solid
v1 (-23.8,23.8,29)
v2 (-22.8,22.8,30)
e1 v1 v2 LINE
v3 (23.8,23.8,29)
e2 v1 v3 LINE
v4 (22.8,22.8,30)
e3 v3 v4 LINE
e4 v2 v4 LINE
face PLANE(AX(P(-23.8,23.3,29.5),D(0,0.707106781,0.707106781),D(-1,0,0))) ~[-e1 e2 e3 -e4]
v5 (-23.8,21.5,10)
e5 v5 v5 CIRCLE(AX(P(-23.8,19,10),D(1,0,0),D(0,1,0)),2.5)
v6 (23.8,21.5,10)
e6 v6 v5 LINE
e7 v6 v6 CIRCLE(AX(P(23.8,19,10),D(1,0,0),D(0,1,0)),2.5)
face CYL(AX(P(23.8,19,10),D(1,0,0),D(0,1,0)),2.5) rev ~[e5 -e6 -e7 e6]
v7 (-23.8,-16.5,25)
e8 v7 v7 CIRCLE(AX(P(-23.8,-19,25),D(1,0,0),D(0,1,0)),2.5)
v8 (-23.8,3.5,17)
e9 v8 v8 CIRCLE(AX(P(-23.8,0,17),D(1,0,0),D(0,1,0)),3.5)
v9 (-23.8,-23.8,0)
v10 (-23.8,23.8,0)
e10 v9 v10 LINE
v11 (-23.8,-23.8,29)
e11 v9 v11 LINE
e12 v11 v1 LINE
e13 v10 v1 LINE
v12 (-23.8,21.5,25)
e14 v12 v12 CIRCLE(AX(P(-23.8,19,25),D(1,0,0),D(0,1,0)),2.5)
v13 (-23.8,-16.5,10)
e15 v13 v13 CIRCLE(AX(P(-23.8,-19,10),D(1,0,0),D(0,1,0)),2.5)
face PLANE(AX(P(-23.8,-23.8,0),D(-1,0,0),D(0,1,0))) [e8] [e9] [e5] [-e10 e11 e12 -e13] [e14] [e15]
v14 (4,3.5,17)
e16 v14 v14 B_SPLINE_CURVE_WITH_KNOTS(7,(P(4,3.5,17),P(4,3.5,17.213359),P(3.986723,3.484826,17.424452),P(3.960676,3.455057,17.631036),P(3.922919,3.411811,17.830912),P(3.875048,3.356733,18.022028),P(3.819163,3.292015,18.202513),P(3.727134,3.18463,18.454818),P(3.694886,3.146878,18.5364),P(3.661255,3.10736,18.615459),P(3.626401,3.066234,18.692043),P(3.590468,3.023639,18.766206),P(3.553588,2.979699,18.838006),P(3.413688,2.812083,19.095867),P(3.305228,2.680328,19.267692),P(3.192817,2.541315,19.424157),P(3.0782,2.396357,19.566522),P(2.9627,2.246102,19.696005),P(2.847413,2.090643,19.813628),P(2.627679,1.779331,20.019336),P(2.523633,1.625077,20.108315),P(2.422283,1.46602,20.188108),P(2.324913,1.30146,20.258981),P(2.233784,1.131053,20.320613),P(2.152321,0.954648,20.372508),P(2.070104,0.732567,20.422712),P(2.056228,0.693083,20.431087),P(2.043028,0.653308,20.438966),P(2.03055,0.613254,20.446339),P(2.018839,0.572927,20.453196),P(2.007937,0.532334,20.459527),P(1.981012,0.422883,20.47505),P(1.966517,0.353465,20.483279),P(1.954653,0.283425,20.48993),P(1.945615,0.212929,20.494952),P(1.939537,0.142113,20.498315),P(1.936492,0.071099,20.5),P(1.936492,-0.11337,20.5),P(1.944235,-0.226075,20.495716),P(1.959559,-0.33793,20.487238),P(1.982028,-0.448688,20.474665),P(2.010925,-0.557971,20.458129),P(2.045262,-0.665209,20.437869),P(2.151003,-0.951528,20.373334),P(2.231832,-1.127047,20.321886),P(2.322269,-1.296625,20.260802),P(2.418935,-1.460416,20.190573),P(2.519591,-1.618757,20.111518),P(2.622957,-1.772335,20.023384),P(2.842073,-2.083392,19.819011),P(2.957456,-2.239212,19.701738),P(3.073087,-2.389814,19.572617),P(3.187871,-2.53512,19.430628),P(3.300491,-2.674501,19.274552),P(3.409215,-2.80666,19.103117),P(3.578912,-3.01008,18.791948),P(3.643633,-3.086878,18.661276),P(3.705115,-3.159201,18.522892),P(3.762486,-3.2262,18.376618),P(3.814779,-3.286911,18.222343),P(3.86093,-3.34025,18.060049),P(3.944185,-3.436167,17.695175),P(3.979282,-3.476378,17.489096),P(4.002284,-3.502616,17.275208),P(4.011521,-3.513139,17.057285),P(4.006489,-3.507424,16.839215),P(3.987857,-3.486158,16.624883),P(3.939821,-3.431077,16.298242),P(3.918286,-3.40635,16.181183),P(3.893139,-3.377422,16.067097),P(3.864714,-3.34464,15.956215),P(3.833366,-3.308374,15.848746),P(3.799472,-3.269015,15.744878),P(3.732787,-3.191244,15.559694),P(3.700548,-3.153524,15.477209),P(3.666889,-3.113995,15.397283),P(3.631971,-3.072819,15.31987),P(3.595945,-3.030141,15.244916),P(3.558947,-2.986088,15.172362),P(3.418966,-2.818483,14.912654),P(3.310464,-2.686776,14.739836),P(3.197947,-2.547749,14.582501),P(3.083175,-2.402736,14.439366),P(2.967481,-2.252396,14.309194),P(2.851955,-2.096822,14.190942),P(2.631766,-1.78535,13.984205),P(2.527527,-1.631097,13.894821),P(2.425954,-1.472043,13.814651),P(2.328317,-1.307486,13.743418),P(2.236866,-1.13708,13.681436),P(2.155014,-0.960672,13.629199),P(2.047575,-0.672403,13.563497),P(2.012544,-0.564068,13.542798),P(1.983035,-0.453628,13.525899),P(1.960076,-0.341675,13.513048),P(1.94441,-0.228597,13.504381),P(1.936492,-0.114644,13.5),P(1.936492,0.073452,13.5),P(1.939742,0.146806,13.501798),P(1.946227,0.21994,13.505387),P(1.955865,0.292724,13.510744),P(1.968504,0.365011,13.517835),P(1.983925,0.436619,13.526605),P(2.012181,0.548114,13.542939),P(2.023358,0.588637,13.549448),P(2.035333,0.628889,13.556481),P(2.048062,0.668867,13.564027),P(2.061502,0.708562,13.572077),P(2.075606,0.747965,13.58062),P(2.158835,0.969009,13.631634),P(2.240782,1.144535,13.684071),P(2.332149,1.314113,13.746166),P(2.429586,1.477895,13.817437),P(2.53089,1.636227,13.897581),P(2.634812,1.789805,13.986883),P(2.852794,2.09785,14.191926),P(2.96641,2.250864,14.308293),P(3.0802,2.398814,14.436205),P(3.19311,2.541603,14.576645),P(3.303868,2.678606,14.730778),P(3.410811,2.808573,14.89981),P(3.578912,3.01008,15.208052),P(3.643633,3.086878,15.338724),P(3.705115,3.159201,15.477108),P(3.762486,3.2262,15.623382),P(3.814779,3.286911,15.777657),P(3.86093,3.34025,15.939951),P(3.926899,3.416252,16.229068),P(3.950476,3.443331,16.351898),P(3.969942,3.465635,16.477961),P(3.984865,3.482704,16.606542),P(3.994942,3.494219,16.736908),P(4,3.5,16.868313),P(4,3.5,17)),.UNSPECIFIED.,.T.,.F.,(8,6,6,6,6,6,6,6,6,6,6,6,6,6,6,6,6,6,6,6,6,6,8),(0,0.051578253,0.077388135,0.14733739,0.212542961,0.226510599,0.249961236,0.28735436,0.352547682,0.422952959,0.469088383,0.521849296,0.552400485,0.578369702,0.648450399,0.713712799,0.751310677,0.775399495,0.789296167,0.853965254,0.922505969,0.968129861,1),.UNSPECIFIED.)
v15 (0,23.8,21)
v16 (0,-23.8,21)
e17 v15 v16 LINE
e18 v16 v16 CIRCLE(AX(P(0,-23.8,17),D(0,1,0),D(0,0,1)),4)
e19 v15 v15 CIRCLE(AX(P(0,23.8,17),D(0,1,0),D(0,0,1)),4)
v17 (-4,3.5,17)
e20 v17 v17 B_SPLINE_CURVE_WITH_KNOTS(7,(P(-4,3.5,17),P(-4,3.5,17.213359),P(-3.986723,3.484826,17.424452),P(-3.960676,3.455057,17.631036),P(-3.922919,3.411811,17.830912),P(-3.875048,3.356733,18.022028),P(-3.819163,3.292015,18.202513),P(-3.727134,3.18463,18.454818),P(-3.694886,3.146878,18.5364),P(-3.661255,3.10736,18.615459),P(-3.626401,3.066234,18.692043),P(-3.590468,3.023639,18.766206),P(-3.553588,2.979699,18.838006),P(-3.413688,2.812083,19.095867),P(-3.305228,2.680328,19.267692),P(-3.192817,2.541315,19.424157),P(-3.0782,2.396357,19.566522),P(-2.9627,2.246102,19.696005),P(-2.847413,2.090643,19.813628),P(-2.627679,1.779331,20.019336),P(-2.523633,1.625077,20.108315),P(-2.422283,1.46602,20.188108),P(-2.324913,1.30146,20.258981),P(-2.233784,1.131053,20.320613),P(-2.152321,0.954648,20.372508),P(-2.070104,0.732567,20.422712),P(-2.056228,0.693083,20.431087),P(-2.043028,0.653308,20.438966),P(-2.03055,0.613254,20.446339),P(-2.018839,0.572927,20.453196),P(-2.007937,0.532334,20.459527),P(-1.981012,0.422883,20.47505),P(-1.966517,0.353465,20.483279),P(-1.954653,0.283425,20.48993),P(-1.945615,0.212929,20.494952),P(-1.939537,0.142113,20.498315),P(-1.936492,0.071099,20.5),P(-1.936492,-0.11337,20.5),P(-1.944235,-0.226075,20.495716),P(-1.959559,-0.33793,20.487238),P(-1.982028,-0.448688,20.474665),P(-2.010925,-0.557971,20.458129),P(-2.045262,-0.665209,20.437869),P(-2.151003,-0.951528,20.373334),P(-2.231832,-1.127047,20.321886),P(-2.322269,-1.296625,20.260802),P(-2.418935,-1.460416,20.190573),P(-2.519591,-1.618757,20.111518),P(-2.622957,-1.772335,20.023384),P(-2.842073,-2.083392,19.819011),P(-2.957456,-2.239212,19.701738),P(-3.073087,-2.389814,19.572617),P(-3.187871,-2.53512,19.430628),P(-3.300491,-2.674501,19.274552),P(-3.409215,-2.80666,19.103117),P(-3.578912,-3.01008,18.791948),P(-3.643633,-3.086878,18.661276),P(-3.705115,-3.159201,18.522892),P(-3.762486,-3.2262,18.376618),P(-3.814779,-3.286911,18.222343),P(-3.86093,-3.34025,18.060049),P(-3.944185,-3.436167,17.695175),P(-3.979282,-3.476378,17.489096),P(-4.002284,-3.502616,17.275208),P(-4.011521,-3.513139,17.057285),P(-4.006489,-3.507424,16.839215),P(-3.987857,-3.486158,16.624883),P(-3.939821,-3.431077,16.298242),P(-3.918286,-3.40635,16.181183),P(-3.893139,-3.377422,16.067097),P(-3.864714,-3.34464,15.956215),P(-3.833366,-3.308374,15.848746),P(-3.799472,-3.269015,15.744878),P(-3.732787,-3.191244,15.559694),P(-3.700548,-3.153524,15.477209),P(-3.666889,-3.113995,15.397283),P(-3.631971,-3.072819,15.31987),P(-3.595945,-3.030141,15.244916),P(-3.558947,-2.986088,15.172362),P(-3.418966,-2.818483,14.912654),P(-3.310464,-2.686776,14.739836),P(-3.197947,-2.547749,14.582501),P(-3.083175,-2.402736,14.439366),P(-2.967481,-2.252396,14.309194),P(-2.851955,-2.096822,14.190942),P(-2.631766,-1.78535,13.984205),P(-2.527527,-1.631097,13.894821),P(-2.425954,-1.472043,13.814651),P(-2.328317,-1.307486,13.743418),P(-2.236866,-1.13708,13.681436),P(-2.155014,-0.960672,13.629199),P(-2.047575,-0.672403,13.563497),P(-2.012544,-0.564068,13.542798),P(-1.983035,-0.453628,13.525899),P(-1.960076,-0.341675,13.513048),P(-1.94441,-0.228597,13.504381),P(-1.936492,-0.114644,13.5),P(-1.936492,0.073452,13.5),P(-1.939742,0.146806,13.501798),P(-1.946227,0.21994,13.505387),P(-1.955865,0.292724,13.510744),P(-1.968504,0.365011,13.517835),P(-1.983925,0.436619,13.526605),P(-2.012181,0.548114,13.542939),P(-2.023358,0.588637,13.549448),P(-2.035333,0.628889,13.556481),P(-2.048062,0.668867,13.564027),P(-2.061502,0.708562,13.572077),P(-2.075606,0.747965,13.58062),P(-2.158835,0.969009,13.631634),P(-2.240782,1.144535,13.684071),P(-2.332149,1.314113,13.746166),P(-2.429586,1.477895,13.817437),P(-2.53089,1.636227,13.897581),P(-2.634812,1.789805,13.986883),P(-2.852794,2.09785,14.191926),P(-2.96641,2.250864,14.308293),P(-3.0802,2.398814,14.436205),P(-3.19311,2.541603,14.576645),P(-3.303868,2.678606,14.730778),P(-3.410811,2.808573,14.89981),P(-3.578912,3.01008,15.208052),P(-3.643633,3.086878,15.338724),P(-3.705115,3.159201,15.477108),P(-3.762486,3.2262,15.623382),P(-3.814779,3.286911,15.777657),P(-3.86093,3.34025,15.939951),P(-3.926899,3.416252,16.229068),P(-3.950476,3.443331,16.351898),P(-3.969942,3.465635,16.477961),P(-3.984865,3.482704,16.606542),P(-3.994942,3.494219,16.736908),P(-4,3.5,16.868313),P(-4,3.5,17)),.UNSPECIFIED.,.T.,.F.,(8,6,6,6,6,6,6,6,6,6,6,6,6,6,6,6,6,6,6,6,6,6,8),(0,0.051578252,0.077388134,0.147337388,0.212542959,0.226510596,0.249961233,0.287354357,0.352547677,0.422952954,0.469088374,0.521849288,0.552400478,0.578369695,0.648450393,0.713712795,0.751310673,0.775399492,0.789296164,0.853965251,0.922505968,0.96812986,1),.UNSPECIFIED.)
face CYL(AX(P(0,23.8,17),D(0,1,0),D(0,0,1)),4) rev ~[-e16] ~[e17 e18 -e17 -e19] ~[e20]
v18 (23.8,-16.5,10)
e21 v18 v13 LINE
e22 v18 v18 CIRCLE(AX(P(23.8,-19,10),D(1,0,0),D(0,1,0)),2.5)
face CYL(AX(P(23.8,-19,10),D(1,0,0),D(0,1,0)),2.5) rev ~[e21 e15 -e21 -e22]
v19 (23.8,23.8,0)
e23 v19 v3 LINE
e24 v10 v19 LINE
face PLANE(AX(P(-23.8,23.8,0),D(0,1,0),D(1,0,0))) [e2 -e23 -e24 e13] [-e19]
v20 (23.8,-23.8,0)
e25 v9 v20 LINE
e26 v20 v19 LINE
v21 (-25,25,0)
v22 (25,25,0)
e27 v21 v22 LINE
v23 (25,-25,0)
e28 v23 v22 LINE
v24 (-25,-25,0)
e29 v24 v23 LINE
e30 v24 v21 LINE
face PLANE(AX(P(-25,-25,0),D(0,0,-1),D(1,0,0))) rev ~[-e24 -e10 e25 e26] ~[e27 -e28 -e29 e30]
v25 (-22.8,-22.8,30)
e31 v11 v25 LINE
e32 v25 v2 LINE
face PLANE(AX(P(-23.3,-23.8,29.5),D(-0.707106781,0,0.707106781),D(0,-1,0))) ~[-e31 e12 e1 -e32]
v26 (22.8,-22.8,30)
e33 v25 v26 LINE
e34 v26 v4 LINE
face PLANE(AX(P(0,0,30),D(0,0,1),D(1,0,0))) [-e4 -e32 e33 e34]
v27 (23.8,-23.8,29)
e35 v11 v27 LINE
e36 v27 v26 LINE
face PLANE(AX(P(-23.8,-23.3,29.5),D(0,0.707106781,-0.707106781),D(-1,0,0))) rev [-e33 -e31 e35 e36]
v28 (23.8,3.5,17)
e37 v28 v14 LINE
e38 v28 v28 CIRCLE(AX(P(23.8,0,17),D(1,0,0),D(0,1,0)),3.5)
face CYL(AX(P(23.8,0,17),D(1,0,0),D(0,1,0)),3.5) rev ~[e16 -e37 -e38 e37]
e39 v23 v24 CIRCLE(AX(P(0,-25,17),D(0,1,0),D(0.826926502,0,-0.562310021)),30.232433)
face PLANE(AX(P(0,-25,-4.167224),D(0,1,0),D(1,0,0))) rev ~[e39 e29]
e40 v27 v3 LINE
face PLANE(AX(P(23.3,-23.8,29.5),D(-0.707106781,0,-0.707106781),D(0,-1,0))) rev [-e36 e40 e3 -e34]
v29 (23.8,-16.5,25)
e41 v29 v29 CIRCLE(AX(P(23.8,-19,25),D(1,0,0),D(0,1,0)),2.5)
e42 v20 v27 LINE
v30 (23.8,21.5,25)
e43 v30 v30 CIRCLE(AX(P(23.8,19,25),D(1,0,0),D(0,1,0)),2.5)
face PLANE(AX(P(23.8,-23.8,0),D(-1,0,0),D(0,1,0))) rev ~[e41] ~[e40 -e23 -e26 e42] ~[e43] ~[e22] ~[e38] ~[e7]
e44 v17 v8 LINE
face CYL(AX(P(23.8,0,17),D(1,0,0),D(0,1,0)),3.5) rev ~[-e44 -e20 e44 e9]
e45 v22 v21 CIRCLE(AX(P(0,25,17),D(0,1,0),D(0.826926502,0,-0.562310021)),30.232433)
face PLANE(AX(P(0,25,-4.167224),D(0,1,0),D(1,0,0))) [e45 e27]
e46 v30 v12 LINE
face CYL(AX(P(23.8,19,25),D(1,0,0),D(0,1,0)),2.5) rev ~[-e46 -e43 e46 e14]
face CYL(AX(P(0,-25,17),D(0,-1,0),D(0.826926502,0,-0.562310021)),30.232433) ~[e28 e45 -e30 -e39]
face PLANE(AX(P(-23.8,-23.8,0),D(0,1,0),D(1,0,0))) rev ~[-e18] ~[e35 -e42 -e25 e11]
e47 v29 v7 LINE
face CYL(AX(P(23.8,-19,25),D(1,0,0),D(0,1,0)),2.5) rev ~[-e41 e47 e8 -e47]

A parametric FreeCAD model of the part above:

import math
import FreeCAD as App
import Part
import Sketcher
Q = App.Units.Quantity


def edges_at(feature, points):
    """Names of the edges that pass closest to the given points."""
    edges = feature.Shape.Edges
    near = lambda p: min(range(len(edges)), key=lambda i: edges[i].distToShape(Part.Vertex(*p))[0])
    return sorted({f"Edge{near(p) + 1}" for p in points})


def add_polygon(sketch, points):
    """Adds a closed chain of lines whose ends are joined by coincident constraints."""
    first, n = sketch.GeometryCount, len(points)
    for a, b in zip(points, points[1:] + points[:1]):
        sketch.addGeometry(Part.LineSegment(App.Vector(*a, 0), App.Vector(*b, 0)), False)
    for i in range(n):
        sketch.addConstraint(Sketcher.Constraint("Coincident", first + i, 2, first + (i + 1) % n, 1))

doc = App.newDocument("Part")
body = doc.addObject("PartDesign::Body", "Body")

sketch1 = body.newObject("Sketcher::SketchObject", "Sketch")
sketch1.AttachmentSupport = (doc.getObject("XY_Plane"), [""])
sketch1.MapMode = "FlatFace"
add_polygon(sketch1, [(-24, 24), (-24, -24), (24, -24), (24, 24)])
sketch1.addConstraint(Sketcher.Constraint("Vertical", 0))
sketch1.addConstraint(Sketcher.Constraint("Horizontal", 1))
sketch1.addConstraint(Sketcher.Constraint("Vertical", 2))
sketch1.addConstraint(Sketcher.Constraint("Horizontal", 3))
sketch1.addConstraint(Sketcher.Constraint("Symmetric", 0, 2, 2, 2, -1, 1))
sketch1.addConstraint(Sketcher.Constraint("Equal", 3, 0))
sketch1.addConstraint(Sketcher.Constraint("DistanceX", 1, 1, 1, 2, Q("47.6 mm")))
pad1 = body.newObject("PartDesign::Pad", "Pad")
pad1.Profile = sketch1
pad1.Length = 30

sketch2 = body.newObject("Sketcher::SketchObject", "Sketch001")
sketch2.AttachmentSupport = (doc.getObject("XZ_Plane"), [""])
sketch2.MapMode = "FlatFace"
sketch2.addGeometry(Part.LineSegment(App.Vector(-25, 0, 0), App.Vector(25, 0, 0)), False)
sketch2.addGeometry(Part.ArcOfCircle(Part.Circle(App.Vector(0, 17, 0), App.Vector(0, 0, 1), 30), math.radians(-146), math.radians(-34)), False)
sketch2.addConstraint(Sketcher.Constraint("Coincident", 0, 1, 1, 1))
sketch2.addConstraint(Sketcher.Constraint("Coincident", 1, 2, 0, 2))
sketch2.addConstraint(Sketcher.Constraint("Horizontal", 0))
sketch2.addConstraint(Sketcher.Constraint("Symmetric", 0, 1, 1, 2, -1, 1))
sketch2.addConstraint(Sketcher.Constraint("DistanceX", 0, 1, 0, 2, Q("50 mm")))
sketch2.addConstraint(Sketcher.Constraint("DistanceY", -1, 1, 1, 3, Q("17 mm")))
pad2 = body.newObject("PartDesign::Pad", "Pad001")
pad2.Profile = sketch2
pad2.Type = "TwoLengths"
pad2.Length = 25
pad2.Length2 = 25
pad2.Reversed = True

sketch3 = body.newObject("Sketcher::SketchObject", "Sketch002")
sketch3.AttachmentSupport = (doc.getObject("XZ_Plane"), [""])
sketch3.MapMode = "FlatFace"
sketch3.AttachmentOffset = App.Placement(App.Vector(0, 0, -23.8), App.Rotation())
sketch3.addGeometry(Part.Circle(App.Vector(0, 17, 0), App.Vector(0, 0, 1), 4), False)
sketch3.addConstraint(Sketcher.Constraint("PointOnObject", 0, 3, -2))
sketch3.addConstraint(Sketcher.Constraint("Diameter", 0, Q("8 mm")))
sketch3.addConstraint(Sketcher.Constraint("DistanceY", -1, 1, 0, 3, Q("17 mm")))
pocket1 = body.newObject("PartDesign::Pocket", "Pocket")
pocket1.Profile = sketch3
pocket1.Type = "ThroughAll"
pocket1.Reversed = True

sketch4 = body.newObject("Sketcher::SketchObject", "Sketch003")
sketch4.AttachmentSupport = (doc.getObject("YZ_Plane"), [""])
sketch4.MapMode = "FlatFace"
sketch4.AttachmentOffset = App.Placement(App.Vector(0, 0, 23.8), App.Rotation())
sketch4.addGeometry(Part.Circle(App.Vector(19, 10, 0), App.Vector(0, 0, 1), 2.5), False)
sketch4.addGeometry(Part.Circle(App.Vector(19, 25, 0), App.Vector(0, 0, 1), 2.5), False)
sketch4.addGeometry(Part.Circle(App.Vector(-19, 25, 0), App.Vector(0, 0, 1), 2.5), False)
sketch4.addGeometry(Part.Circle(App.Vector(-19, 10, 0), App.Vector(0, 0, 1), 2.5), False)
sketch4.addGeometry(Part.Circle(App.Vector(0, 17, 0), App.Vector(0, 0, 1), 3.5), False)
sketch4.addConstraint(Sketcher.Constraint("Equal", 0, 1))
sketch4.addConstraint(Sketcher.Constraint("Equal", 1, 2))
sketch4.addConstraint(Sketcher.Constraint("Equal", 2, 3))
sketch4.addConstraint(Sketcher.Constraint("Symmetric", 1, 3, 2, 3, -2))
sketch4.addConstraint(Sketcher.Constraint("Symmetric", 0, 3, 3, 3, -2))
sketch4.addConstraint(Sketcher.Constraint("PointOnObject", 4, 3, -2))
sketch4.addConstraint(Sketcher.Constraint("Vertical", 0, 3, 1, 3))
sketch4.addConstraint(Sketcher.Constraint("Diameter", 0, Q("5 mm")))
sketch4.addConstraint(Sketcher.Constraint("Diameter", 4, Q("7 mm")))
sketch4.addConstraint(Sketcher.Constraint("DistanceX", -1, 1, 0, 3, Q("19 mm")))
sketch4.addConstraint(Sketcher.Constraint("DistanceY", -1, 1, 0, 3, Q("10 mm")))
sketch4.addConstraint(Sketcher.Constraint("DistanceY", -1, 1, 1, 3, Q("25 mm")))
sketch4.addConstraint(Sketcher.Constraint("DistanceY", -1, 1, 4, 3, Q("17 mm")))
pocket2 = body.newObject("PartDesign::Pocket", "Pocket001")
pocket2.Profile = sketch4
pocket2.Type = "ThroughAll"
doc.recompute()

chamfer = body.newObject("PartDesign::Chamfer", "Chamfer")
chamfer.Base = (pocket2, edges_at(pocket2, [
    (-23.8, 0, 30),
    (0, -23.8, 30),
    (23.8, 0, 30),
    (0, 23.8, 30),
]))
chamfer.Size = 1

doc.recompute()
